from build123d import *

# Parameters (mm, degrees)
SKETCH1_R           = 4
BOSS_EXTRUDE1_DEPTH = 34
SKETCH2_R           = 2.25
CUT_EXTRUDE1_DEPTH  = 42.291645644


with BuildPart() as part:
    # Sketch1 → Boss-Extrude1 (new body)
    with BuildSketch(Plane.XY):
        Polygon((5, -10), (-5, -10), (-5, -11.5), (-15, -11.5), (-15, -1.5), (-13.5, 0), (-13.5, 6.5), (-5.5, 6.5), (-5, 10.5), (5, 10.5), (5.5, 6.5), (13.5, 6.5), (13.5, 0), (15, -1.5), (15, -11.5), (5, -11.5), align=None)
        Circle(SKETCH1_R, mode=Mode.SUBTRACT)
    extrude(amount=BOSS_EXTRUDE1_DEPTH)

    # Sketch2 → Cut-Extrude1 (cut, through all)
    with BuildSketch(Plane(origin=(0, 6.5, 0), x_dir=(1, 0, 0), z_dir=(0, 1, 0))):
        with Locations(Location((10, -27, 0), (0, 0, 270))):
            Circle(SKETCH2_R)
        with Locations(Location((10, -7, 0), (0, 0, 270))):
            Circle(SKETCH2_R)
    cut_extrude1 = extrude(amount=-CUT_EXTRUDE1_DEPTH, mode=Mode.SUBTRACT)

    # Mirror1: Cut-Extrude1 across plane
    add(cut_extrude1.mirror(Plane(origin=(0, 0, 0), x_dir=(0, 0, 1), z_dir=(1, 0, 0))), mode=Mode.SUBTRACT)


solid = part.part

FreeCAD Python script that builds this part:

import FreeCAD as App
import Part
import Sketcher
from FreeCAD import Vector

doc = App.newDocument("Part")
body = doc.addObject("PartDesign::Body", "Body")

sketch1 = doc.addObject("Sketcher::SketchObject", "Sketch")
body.addObject(sketch1)
sketch1.AttachmentSupport = (doc.XY_Plane, [""])
sketch1.MapMode = "FlatFace"
sketch1.addGeometry([
    Part.LineSegment(Vector(-5, -10, 0), Vector(5, -10, 0)),
    Part.LineSegment(Vector(5, -10, 0), Vector(5, -11.5, 0)),
    Part.LineSegment(Vector(5, -11.5, 0), Vector(15, -11.5, 0)),
    Part.LineSegment(Vector(15, -11.5, 0), Vector(15, -1.5, 0)),
    Part.LineSegment(Vector(15, -1.5, 0), Vector(13.5, 0, 0)),
    Part.LineSegment(Vector(13.5, 0, 0), Vector(13.5, 6.5, 0)),
    Part.LineSegment(Vector(13.5, 6.5, 0), Vector(5.5, 6.5, 0)),
    Part.LineSegment(Vector(5.5, 6.5, 0), Vector(5, 10.5, 0)),
    Part.LineSegment(Vector(5, 10.5, 0), Vector(-5, 10.5, 0)),
    Part.LineSegment(Vector(-5, 10.5, 0), Vector(-5.5, 6.5, 0)),
    Part.LineSegment(Vector(-5.5, 6.5, 0), Vector(-13.5, 6.5, 0)),
    Part.LineSegment(Vector(-13.5, 6.5, 0), Vector(-13.5, 0, 0)),
    Part.LineSegment(Vector(-13.5, 0, 0), Vector(-15, -1.5, 0)),
    Part.LineSegment(Vector(-15, -1.5, 0), Vector(-15, -11.5, 0)),
    Part.LineSegment(Vector(-15, -11.5, 0), Vector(-5, -11.5, 0)),
    Part.LineSegment(Vector(-5, -11.5, 0), Vector(-5, -10, 0)),
    Part.Circle(Vector(0, 0, 0), Vector(0, 0, 1), 4),
], False)
sketch1.addConstraint([
    Sketcher.Constraint("Coincident", 0, 2, 1, 1),
    Sketcher.Constraint("Coincident", 1, 2, 2, 1),
    Sketcher.Constraint("Coincident", 2, 2, 3, 1),
    Sketcher.Constraint("Coincident", 3, 2, 4, 1),
    Sketcher.Constraint("Coincident", 4, 2, 5, 1),
    Sketcher.Constraint("Coincident", 5, 2, 6, 1),
    Sketcher.Constraint("Coincident", 6, 2, 7, 1),
    Sketcher.Constraint("Coincident", 7, 2, 8, 1),
    Sketcher.Constraint("Coincident", 8, 2, 9, 1),
    Sketcher.Constraint("Coincident", 9, 2, 10, 1),
    Sketcher.Constraint("Coincident", 10, 2, 11, 1),
    Sketcher.Constraint("Coincident", 11, 2, 12, 1),
    Sketcher.Constraint("Coincident", 12, 2, 13, 1),
    Sketcher.Constraint("Coincident", 13, 2, 14, 1),
    Sketcher.Constraint("Coincident", 14, 2, 15, 1),
    Sketcher.Constraint("Coincident", 15, 2, 0, 1),
    Sketcher.Constraint("Horizontal", 0),
    Sketcher.Constraint("Vertical", 1),
    Sketcher.Constraint("Horizontal", 2),
    Sketcher.Constraint("Vertical", 3),
    Sketcher.Constraint("Vertical", 5),
    Sketcher.Constraint("Horizontal", 6),
    Sketcher.Constraint("Horizontal", 8),
    Sketcher.Constraint("Horizontal", 10),
    Sketcher.Constraint("Vertical", 11),
    Sketcher.Constraint("Vertical", 13),
    Sketcher.Constraint("Horizontal", 14),
    Sketcher.Constraint("Vertical", 15),
    Sketcher.Constraint("Coincident", 16, 3, -1, 1),
    Sketcher.Constraint("Symmetric", 4, 2, 11, 2, -1, 1),
    Sketcher.Constraint("Symmetric", 6, 2, 9, 2, -2),
    Sketcher.Constraint("Symmetric", 3, 2, 12, 2, -2),
    Sketcher.Constraint("Symmetric", 1, 2, 14, 2, -2),
    Sketcher.Constraint("PointOnObject", 4, 2, -1),
    Sketcher.Constraint("Perpendicular", 4, 12),
    Sketcher.Constraint("Vertical", 1, 2, 7, 2),
    Sketcher.Constraint("Vertical", 8, 2, 14, 2),
    Sketcher.Constraint("Equal", 0, 2),
    Sketcher.Constraint("Equal", 14, 3),
    Sketcher.Constraint("Diameter", 16, 8.0),
    Sketcher.Constraint("DistanceX", 0, 1, 0, 2, 10.0),
    Sketcher.Constraint("DistanceX", 6, 2, 6, 1, 8.0),
    Sketcher.Constraint("DistanceY", 1, 2, 1, 1, 1.5),
    Sketcher.Constraint("DistanceY", 5, 1, 5, 2, 6.5),
    Sketcher.Constraint("DistanceY", 0, 2, -1, 1, 10.0),
    Sketcher.Constraint("DistanceY", 6, 2, 7, 2, 4.0),
])
pad1 = doc.addObject("PartDesign::Pad", "Pad")
body.addObject(pad1)
pad1.Profile = sketch1
pad1.Length = 34

sketch2 = doc.addObject("Sketcher::SketchObject", "Sketch001")
body.addObject(sketch2)
sketch2.AttachmentSupport = (doc.XZ_Plane, [""])
sketch2.MapMode = "FlatFace"
sketch2.AttachmentOffset = App.Placement(Vector(0, 0, -6.5), App.Rotation())
sketch2.addGeometry([
    Part.Circle(Vector(10, 27, 0), Vector(0, 0, 1), 2.25),
    Part.Circle(Vector(10, 7, 0), Vector(0, 0, 1), 2.25),
], False)
sketch2.addConstraint([
    Sketcher.Constraint("Equal", 0, 1),
    Sketcher.Constraint("Vertical", 0, 3, 1, 3),
    Sketcher.Constraint("Diameter", 0, 4.5),
    Sketcher.Constraint("DistanceX", -1, 1, 0, 3, 10.0),
    Sketcher.Constraint("DistanceY", -1, 1, 0, 3, 27.0),
    Sketcher.Constraint("DistanceY", -1, 1, 1, 3, 7.0),
])
pocket1 = doc.addObject("PartDesign::Pocket", "Pocket")
body.addObject(pocket1)
pocket1.Profile = sketch2
pocket1.Type = "ThroughAll"
pocket1.Reversed = True
doc.recompute()

mirrored = doc.addObject("PartDesign::Mirrored", "Mirrored")
body.addObject(mirrored)
mirrored.Originals = [pocket1]
mirrored.MirrorPlane = (doc.YZ_Plane, [""])
body.Tip = mirrored

doc.recompute()
